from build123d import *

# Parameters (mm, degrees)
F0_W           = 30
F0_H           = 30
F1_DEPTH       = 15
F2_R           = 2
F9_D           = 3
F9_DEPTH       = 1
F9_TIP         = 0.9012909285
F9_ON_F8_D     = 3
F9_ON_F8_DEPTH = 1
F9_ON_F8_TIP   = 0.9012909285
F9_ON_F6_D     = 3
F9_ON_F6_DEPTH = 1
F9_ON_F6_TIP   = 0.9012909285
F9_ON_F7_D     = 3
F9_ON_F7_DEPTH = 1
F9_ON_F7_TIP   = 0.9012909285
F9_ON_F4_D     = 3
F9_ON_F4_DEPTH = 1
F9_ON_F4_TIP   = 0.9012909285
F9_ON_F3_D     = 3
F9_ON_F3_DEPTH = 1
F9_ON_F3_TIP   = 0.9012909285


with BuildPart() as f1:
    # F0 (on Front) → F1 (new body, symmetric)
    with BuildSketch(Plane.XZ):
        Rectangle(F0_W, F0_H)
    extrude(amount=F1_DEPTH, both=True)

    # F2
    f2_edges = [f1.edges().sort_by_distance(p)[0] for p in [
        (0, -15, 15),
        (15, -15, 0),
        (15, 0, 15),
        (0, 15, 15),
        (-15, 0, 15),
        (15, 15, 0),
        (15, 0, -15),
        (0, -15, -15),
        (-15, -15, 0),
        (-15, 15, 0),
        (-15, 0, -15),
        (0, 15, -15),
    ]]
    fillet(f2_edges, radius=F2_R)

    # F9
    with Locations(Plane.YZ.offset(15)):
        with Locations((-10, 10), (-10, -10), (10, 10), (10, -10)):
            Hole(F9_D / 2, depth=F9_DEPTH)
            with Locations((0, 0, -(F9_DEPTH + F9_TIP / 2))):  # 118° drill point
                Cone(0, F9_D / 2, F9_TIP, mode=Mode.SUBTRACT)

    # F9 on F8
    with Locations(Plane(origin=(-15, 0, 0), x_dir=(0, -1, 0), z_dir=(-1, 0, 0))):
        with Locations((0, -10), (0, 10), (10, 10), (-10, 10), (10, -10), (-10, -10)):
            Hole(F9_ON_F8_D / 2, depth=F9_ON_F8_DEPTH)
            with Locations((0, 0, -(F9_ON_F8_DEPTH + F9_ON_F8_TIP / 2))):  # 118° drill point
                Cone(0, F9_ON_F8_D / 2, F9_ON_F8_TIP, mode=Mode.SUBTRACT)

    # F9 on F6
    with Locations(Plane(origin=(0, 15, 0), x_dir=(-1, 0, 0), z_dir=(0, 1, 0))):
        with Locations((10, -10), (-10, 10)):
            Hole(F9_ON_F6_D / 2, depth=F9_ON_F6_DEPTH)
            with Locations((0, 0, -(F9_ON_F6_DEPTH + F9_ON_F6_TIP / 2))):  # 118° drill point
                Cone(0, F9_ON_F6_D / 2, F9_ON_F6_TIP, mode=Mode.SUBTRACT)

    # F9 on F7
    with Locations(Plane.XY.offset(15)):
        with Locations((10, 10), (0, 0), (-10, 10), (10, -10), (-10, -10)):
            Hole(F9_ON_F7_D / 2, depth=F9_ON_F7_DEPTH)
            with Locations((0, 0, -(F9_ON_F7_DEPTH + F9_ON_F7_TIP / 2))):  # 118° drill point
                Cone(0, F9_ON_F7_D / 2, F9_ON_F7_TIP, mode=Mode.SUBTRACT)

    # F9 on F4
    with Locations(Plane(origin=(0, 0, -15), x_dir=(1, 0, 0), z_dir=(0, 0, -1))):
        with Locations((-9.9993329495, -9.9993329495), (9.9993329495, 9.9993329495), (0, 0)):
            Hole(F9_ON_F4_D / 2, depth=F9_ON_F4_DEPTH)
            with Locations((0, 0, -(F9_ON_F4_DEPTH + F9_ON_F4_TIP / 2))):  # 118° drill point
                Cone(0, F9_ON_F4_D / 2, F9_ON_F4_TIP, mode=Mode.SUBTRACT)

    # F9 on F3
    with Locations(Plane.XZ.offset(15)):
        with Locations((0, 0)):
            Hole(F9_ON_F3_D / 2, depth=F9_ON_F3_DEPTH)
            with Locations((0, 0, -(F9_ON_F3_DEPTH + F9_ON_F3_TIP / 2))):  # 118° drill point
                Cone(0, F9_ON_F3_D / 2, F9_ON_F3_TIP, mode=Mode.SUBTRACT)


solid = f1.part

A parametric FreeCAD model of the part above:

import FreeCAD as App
import Part
import Sketcher

V = App.Vector


def add_polygon(sketch, points):
    """Adds a closed chain of lines whose ends are joined by coincident constraints."""
    first, n = sketch.GeometryCount, len(points)
    for a, b in zip(points, points[1:] + points[:1]):
        sketch.addGeometry(Part.LineSegment(App.Vector(*a, 0), App.Vector(*b, 0)), False)
    for i in range(n):
        sketch.addConstraint(Sketcher.Constraint("Coincident", first + i, 2, first + (i + 1) % n, 1))

doc = App.newDocument("Part")
body = doc.addObject("PartDesign::Body", "Body")

# Sketch on XZ plane
sketch1 = body.newObject("Sketcher::SketchObject", "Sketch")
sketch1.AttachmentSupport = (doc.getObject("XZ_Plane"), [""])
sketch1.MapMode = "FlatFace"
add_polygon(sketch1, [(-15, 15), (-15, -15), (15, -15), (15, 15)])  # lines 0-3
sketch1.addConstraint([
    Sketcher.Constraint("Vertical", 0),
    Sketcher.Constraint("Horizontal", 1),
    Sketcher.Constraint("Vertical", 2),
    Sketcher.Constraint("Horizontal", 3),
    Sketcher.Constraint("Symmetric", 0, 2, 2, 2, -1, 1),
    Sketcher.Constraint("Equal", 3, 0),
    Sketcher.Constraint("DistanceX", 1, 1, 1, 2, 30.0),
])
pad1 = body.newObject("PartDesign::Pad", "Pad")
pad1.Profile = sketch1
pad1.Length = 30
pad1.Midplane = True
doc.recompute()

fillet = body.newObject("PartDesign::Fillet", "Fillet")
fillet.Base = (pad1, ["Edge1"])
fillet.UseAllEdges = True
fillet.Radius = 2

# Sketch on YZ plane
sketch2 = body.newObject("Sketcher::SketchObject", "Sketch001")
sketch2.AttachmentSupport = (doc.getObject("YZ_Plane"), [""])
sketch2.MapMode = "FlatFace"
sketch2.AttachmentOffset = App.Placement(V(0, 0, 15), App.Rotation())
sketch2.addGeometry([
    Part.Circle(V(-10, 10, 0), V(0, 0, 1), 1.5),
    Part.Circle(V(-10, -10, 0), V(0, 0, 1), 1.5),
    Part.Circle(V(10, 10, 0), V(0, 0, 1), 1.5),
    Part.Circle(V(10, -10, 0), V(0, 0, 1), 1.5),
], False)
sketch2.addConstraint([
    Sketcher.Constraint("Equal", 0, 1),
    Sketcher.Constraint("Equal", 1, 2),
    Sketcher.Constraint("Equal", 2, 3),
    Sketcher.Constraint("Symmetric", 1, 3, 2, 3, -1, 1),
    Sketcher.Constraint("Symmetric", 0, 3, 3, 3, -1, 1),
    Sketcher.Constraint("Symmetric", 0, 3, 2, 3, -2),
    Sketcher.Constraint("Diameter", 0, 3.0),
    Sketcher.Constraint("DistanceX", 0, 3, -1, 1, 10.0),
    Sketcher.Constraint("DistanceY", -1, 1, 0, 3, 10.0),
])
doc.recompute()
hole = body.newObject("PartDesign::Hole", "Hole")
hole.Profile = sketch2
hole.ThreadType = "None"
hole.Diameter = 3
hole.DepthType = "Dimension"
hole.Depth = 1
hole.DrillPoint = "Angled"
hole.DrillPointAngle = 118

# Sketch on YZ plane
sketch3 = body.newObject("Sketcher::SketchObject", "Sketch002")
sketch3.AttachmentSupport = (doc.getObject("YZ_Plane"), [""])
sketch3.MapMode = "FlatFace"
sketch3.AttachmentOffset = App.Placement(V(0, 0, -15), App.Rotation())
sketch3.addGeometry([
    Part.Circle(V(0, -10, 0), V(0, 0, 1), 1.5),  # 0
    Part.Circle(V(0, 10, 0), V(0, 0, 1), 1.5),  # 1
    Part.Circle(V(-10, 10, 0), V(0, 0, 1), 1.5),  # 2
    Part.Circle(V(10, 10, 0), V(0, 0, 1), 1.5),  # 3
    Part.Circle(V(-10, -10, 0), V(0, 0, 1), 1.5),  # 4
    Part.Circle(V(10, -10, 0), V(0, 0, 1), 1.5),  # 5
], False)
sketch3.addConstraint([
    Sketcher.Constraint("Equal", 0, 1),
    Sketcher.Constraint("Equal", 1, 2),
    Sketcher.Constraint("Equal", 2, 3),
    Sketcher.Constraint("Equal", 3, 4),
    Sketcher.Constraint("Equal", 4, 5),
    Sketcher.Constraint("Symmetric", 0, 3, 1, 3, -1, 1),
    Sketcher.Constraint("Symmetric", 3, 3, 4, 3, -1, 1),
    Sketcher.Constraint("Symmetric", 2, 3, 5, 3, -1, 1),
    Sketcher.Constraint("Symmetric", 2, 3, 3, 3, -2),
    Sketcher.Constraint("PointOnObject", 0, 3, -2),
    Sketcher.Constraint("Horizontal", 1, 3, 2, 3),
    Sketcher.Constraint("Diameter", 0, 3.0),
    Sketcher.Constraint("DistanceY", 0, 3, -1, 1, 10.0),
    Sketcher.Constraint("DistanceX", 2, 3, -1, 1, 10.0),
])
doc.recompute()
hole2 = body.newObject("PartDesign::Hole", "Hole001")
hole2.Profile = sketch3
hole2.ThreadType = "None"
hole2.Diameter = 3
hole2.DepthType = "Dimension"
hole2.Depth = 1
hole2.DrillPoint = "Angled"
hole2.DrillPointAngle = 118
hole2.Reversed = True

# Sketch on XZ plane
sketch4 = body.newObject("Sketcher::SketchObject", "Sketch003")
sketch4.AttachmentSupport = (doc.getObject("XZ_Plane"), [""])
sketch4.MapMode = "FlatFace"
sketch4.AttachmentOffset = App.Placement(V(0, 0, -15), App.Rotation())
sketch4.addGeometry([
    Part.Circle(V(-10, -10, 0), V(0, 0, 1), 1.5),
    Part.Circle(V(10, 10, 0), V(0, 0, 1), 1.5),
], False)
sketch4.addConstraint([
    Sketcher.Constraint("Equal", 0, 1),
    Sketcher.Constraint("Symmetric", 0, 3, 1, 3, -1, 1),
    Sketcher.Constraint("Diameter", 0, 3.0),
    Sketcher.Constraint("DistanceX", 0, 3, -1, 1, 10.0),
    Sketcher.Constraint("DistanceY", 0, 3, -1, 1, 10.0),
])
doc.recompute()
hole3 = body.newObject("PartDesign::Hole", "Hole002")
hole3.Profile = sketch4
hole3.ThreadType = "None"
hole3.Diameter = 3
hole3.DepthType = "Dimension"
hole3.Depth = 1
hole3.DrillPoint = "Angled"
hole3.DrillPointAngle = 118
hole3.Reversed = True

# Sketch on XY plane
sketch5 = body.newObject("Sketcher::SketchObject", "Sketch004")
sketch5.AttachmentSupport = (doc.getObject("XY_Plane"), [""])
sketch5.MapMode = "FlatFace"
sketch5.AttachmentOffset = App.Placement(V(0, 0, 15), App.Rotation())
sketch5.addGeometry([
    Part.Circle(V(10, 10, 0), V(0, 0, 1), 1.5),  # 0
    Part.Circle(V(0, 0, 0), V(0, 0, 1), 1.5),  # 1
    Part.Circle(V(-10, 10, 0), V(0, 0, 1), 1.5),  # 2
    Part.Circle(V(10, -10, 0), V(0, 0, 1), 1.5),  # 3
    Part.Circle(V(-10, -10, 0), V(0, 0, 1), 1.5),  # 4
], False)
sketch5.addConstraint([
    Sketcher.Constraint("Coincident", 1, 3, -1, 1),
    Sketcher.Constraint("Equal", 0, 1),
    Sketcher.Constraint("Equal", 1, 2),
    Sketcher.Constraint("Equal", 2, 3),
    Sketcher.Constraint("Equal", 3, 4),
    Sketcher.Constraint("Symmetric", 2, 3, 3, 3, -1, 1),
    Sketcher.Constraint("Symmetric", 0, 3, 4, 3, -1, 1),
    Sketcher.Constraint("Symmetric", 0, 3, 2, 3, -2),
    Sketcher.Constraint("Diameter", 0, 3.0),
    Sketcher.Constraint("DistanceX", -1, 1, 0, 3, 10.0),
    Sketcher.Constraint("DistanceY", -1, 1, 0, 3, 10.0),
])
doc.recompute()
hole4 = body.newObject("PartDesign::Hole", "Hole003")
hole4.Profile = sketch5
hole4.ThreadType = "None"
hole4.Diameter = 3
hole4.DepthType = "Dimension"
hole4.Depth = 1
hole4.DrillPoint = "Angled"
hole4.DrillPointAngle = 118

# Sketch on XY plane
sketch6 = body.newObject("Sketcher::SketchObject", "Sketch005")
sketch6.AttachmentSupport = (doc.getObject("XY_Plane"), [""])
sketch6.MapMode = "FlatFace"
sketch6.AttachmentOffset = App.Placement(V(0, 0, -15), App.Rotation())
sketch6.addGeometry([
    Part.Circle(V(-9.999333, 9.999333, 0), V(0, 0, 1), 1.5),
    Part.Circle(V(9.999333, -9.999333, 0), V(0, 0, 1), 1.5),
    Part.Circle(V(0, 0, 0), V(0, 0, 1), 1.5),
], False)
sketch6.addConstraint([
    Sketcher.Constraint("Coincident", 2, 3, -1, 1),
    Sketcher.Constraint("Equal", 0, 1),
    Sketcher.Constraint("Equal", 1, 2),
    Sketcher.Constraint("Symmetric", 0, 3, 1, 3, -1, 1),
    Sketcher.Constraint("Diameter", 0, 3.0),
    Sketcher.Constraint("DistanceX", 0, 3, -1, 1, 9.999333),
    Sketcher.Constraint("DistanceY", -1, 1, 0, 3, 9.999333),
])
doc.recompute()
hole5 = body.newObject("PartDesign::Hole", "Hole004")
hole5.Profile = sketch6
hole5.ThreadType = "None"
hole5.Diameter = 3
hole5.DepthType = "Dimension"
hole5.Depth = 1
hole5.DrillPoint = "Angled"
hole5.DrillPointAngle = 118
hole5.Reversed = True

# Sketch on XZ plane
sketch7 = body.newObject("Sketcher::SketchObject", "Sketch006")
sketch7.AttachmentSupport = (doc.getObject("XZ_Plane"), [""])
sketch7.MapMode = "FlatFace"
sketch7.AttachmentOffset = App.Placement(V(0, 0, 15), App.Rotation())
sketch7.addGeometry(Part.Circle(V(0, 0, 0), V(0, 0, 1), 1.5), False)
sketch7.addConstraint([
    Sketcher.Constraint("Coincident", 0, 3, -1, 1),
    Sketcher.Constraint("Diameter", 0, 3.0),
])
doc.recompute()
hole6 = body.newObject("PartDesign::Hole", "Hole005")
hole6.Profile = sketch7
hole6.ThreadType = "None"
hole6.Diameter = 3
hole6.DepthType = "Dimension"
hole6.Depth = 1
hole6.DrillPoint = "Angled"
hole6.DrillPointAngle = 118

doc.recompute()
